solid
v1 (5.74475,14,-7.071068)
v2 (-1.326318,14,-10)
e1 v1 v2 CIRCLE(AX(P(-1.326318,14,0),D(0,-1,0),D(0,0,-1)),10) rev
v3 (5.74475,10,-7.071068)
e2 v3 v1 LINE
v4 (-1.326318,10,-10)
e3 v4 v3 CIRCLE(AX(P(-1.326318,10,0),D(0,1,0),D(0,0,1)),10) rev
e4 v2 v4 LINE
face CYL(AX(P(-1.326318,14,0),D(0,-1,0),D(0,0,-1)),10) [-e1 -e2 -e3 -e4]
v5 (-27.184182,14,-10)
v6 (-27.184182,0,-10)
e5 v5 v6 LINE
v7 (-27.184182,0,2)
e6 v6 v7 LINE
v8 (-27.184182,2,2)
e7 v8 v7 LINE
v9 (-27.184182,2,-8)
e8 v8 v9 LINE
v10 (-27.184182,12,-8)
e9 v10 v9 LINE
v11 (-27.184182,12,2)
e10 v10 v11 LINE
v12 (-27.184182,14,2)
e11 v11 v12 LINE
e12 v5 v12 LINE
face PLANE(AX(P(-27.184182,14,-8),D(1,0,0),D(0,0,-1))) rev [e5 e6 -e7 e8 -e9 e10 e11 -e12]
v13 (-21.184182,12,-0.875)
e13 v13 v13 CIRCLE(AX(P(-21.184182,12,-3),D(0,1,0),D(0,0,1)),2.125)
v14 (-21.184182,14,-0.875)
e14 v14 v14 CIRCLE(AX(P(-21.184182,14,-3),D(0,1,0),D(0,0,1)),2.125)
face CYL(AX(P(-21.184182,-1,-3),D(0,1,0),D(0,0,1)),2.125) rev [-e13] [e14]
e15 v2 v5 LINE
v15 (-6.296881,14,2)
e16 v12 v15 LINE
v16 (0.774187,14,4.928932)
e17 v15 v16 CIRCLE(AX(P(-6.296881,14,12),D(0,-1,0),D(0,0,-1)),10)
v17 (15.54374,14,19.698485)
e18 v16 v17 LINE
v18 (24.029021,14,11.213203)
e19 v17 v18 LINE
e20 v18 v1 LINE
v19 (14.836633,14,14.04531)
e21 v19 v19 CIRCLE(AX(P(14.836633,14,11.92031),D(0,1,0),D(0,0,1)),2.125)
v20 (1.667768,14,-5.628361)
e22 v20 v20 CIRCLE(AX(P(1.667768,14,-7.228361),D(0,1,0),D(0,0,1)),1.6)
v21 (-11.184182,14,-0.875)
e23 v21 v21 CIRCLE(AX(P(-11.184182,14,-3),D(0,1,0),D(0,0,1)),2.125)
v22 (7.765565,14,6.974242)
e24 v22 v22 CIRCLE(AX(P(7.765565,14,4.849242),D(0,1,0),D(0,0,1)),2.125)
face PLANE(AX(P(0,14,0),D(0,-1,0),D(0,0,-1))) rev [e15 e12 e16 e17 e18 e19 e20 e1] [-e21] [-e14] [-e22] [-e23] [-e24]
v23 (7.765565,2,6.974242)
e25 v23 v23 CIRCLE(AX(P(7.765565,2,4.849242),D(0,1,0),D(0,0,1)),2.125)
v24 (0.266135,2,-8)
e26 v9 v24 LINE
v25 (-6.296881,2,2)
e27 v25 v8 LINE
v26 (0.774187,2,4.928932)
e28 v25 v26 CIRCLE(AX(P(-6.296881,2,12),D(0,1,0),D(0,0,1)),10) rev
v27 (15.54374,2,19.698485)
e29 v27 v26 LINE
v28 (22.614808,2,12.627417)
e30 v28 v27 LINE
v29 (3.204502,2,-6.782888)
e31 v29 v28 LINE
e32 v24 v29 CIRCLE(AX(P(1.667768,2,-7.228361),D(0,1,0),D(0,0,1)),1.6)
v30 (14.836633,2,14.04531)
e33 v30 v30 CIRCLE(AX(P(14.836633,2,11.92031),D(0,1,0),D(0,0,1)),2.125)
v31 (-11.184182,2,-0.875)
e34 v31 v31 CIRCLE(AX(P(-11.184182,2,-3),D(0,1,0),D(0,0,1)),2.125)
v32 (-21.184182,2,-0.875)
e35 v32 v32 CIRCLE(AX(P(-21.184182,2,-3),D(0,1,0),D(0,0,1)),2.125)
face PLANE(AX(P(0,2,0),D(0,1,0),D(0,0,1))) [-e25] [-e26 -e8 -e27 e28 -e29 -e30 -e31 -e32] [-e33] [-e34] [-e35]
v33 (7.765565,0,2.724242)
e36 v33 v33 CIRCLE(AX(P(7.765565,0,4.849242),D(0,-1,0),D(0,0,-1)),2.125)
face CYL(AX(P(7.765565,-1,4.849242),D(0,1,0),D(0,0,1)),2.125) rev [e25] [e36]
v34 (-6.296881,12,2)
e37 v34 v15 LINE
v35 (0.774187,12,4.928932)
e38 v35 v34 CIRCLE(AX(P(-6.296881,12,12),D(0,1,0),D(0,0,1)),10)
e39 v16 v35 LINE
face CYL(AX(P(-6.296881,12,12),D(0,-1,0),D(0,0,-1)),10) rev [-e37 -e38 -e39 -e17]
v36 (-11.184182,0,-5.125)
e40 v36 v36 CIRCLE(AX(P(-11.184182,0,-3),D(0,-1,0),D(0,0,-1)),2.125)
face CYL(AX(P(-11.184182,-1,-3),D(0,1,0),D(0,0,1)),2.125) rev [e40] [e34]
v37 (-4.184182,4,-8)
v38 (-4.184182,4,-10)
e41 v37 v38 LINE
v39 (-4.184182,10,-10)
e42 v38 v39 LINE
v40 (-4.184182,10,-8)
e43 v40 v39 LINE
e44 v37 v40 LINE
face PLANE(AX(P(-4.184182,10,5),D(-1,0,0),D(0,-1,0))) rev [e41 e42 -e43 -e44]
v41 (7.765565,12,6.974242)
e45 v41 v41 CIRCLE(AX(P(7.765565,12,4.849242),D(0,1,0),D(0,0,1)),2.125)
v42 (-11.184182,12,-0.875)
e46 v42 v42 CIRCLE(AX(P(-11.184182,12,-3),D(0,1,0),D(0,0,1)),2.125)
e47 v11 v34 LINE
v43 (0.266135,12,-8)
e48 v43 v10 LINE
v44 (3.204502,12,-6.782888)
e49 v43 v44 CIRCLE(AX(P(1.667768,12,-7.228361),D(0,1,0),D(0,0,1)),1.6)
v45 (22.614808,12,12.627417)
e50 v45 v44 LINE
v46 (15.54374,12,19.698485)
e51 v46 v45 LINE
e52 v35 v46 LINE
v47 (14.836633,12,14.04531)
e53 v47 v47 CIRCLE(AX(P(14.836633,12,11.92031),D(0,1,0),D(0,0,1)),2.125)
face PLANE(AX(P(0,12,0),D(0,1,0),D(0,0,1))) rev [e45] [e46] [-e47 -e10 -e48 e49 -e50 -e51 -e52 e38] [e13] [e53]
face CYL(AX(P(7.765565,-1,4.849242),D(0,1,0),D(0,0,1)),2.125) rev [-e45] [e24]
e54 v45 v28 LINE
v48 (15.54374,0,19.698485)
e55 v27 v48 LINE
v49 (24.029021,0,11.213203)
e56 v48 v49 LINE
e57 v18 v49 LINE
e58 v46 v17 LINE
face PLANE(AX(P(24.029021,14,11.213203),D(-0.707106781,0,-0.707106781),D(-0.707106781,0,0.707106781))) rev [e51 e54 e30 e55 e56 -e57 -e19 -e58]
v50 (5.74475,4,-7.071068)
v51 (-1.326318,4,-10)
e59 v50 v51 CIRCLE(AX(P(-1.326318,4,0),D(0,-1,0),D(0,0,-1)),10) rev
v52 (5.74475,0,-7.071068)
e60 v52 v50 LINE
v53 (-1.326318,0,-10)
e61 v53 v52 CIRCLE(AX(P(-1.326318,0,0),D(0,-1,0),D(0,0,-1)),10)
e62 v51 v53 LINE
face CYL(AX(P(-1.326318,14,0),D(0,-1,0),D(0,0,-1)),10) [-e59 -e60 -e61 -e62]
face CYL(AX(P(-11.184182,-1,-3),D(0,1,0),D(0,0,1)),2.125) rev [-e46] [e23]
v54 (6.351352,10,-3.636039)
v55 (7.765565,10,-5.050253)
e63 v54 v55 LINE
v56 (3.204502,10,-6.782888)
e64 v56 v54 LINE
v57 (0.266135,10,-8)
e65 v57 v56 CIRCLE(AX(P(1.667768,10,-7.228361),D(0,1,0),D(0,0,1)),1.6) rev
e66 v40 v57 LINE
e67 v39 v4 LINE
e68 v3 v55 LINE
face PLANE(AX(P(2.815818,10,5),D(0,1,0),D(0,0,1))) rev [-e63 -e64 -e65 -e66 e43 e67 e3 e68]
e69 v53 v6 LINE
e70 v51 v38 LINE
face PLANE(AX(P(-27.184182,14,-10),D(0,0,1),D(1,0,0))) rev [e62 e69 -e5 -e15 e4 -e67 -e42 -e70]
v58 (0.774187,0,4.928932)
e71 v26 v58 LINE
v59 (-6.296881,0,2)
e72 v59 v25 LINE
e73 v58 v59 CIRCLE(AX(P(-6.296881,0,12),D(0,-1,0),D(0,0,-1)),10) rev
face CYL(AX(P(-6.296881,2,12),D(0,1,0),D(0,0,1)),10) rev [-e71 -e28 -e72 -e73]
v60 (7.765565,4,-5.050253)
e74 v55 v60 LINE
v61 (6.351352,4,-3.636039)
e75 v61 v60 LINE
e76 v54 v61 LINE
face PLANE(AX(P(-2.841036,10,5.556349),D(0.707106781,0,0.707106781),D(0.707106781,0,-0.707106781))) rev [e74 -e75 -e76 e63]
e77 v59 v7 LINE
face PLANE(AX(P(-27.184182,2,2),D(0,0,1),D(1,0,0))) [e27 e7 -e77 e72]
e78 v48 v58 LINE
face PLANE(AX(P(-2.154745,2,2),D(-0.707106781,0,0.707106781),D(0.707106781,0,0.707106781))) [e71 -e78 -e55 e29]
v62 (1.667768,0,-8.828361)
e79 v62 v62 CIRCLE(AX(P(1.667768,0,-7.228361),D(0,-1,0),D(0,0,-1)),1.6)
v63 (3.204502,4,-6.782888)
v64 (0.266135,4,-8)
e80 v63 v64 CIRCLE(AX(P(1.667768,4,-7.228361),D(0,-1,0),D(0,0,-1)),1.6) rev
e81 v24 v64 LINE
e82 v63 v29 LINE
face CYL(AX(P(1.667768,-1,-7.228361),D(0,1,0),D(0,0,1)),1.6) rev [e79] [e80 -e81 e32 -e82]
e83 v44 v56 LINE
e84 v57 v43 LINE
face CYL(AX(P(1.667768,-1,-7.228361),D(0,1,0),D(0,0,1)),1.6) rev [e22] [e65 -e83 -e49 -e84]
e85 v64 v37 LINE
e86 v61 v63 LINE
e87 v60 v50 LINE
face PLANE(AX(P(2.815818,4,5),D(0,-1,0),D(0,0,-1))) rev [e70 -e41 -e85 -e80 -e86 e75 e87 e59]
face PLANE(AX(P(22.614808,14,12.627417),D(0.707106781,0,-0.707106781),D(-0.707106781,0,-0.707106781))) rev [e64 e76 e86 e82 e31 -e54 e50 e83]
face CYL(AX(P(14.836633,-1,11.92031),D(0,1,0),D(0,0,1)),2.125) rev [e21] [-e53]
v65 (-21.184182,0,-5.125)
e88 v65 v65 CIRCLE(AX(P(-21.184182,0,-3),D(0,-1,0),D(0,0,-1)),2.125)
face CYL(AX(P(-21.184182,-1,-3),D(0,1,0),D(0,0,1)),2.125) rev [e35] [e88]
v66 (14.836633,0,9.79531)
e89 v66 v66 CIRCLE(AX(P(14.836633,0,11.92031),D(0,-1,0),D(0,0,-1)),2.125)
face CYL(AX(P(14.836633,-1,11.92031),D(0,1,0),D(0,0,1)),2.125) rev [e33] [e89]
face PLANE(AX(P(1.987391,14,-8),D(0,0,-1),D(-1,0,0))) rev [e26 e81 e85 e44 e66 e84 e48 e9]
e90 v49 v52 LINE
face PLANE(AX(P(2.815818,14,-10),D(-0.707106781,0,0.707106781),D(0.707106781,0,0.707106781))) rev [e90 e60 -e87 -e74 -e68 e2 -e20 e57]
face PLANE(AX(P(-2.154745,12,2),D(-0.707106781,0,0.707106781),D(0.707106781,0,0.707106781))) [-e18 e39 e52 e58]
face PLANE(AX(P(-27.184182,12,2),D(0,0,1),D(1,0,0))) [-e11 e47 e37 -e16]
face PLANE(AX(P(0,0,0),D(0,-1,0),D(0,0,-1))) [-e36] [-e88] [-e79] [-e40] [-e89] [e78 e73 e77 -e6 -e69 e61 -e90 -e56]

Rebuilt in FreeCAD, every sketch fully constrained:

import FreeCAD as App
import Part
import Sketcher
Q = App.Units.Quantity


def edges_at(feature, points):
    """Names of the edges that pass closest to the given points."""
    edges = feature.Shape.Edges
    near = lambda p: min(range(len(edges)), key=lambda i: edges[i].distToShape(Part.Vertex(*p))[0])
    return sorted({f"Edge{near(p) + 1}" for p in points})


def add_polygon(sketch, points):
    """Adds a closed chain of lines whose ends are joined by coincident constraints."""
    first, n = sketch.GeometryCount, len(points)
    for a, b in zip(points, points[1:] + points[:1]):
        sketch.addGeometry(Part.LineSegment(App.Vector(*a, 0), App.Vector(*b, 0)), False)
    for i in range(n):
        sketch.addConstraint(Sketcher.Constraint("Coincident", first + i, 2, first + (i + 1) % n, 1))

doc = App.newDocument("Part")
body = doc.addObject("PartDesign::Body", "Body")

sketch1 = body.newObject("Sketcher::SketchObject", "Sketch")
sketch1.AttachmentSupport = (doc.getObject("XZ_Plane"), [""])
sketch1.MapMode = "FlatFace"
add_polygon(sketch1, [(2.8, -10), (-27.2, -10), (-27.2, -8), (2, -8), (22.6, 12.6), (24, 11.2)])
sketch1.addConstraint([
    Sketcher.Constraint("Horizontal", 0),
    Sketcher.Constraint("Vertical", 1),
    Sketcher.Constraint("Horizontal", 2),
    Sketcher.Constraint("Perpendicular", 3, 4),
    Sketcher.Constraint("Perpendicular", 4, 5),
    Sketcher.Constraint("DistanceX", 0, 2, 0, 1, 30.0),
    Sketcher.Constraint("DistanceY", 1, 1, 1, 2, 2.0),
    Sketcher.Constraint("Angle", 3, Q("45 deg")),
    Sketcher.Constraint("Distance", 4, 2.0),
    Sketcher.Constraint("Distance", 5, 30.0),
    Sketcher.Constraint("DistanceY", 0, 2, -1, 1, 10.0),
    Sketcher.Constraint("DistanceX", -1, 1, 2, 2, 1.987391),
])
pad1 = body.newObject("PartDesign::Pad", "Pad")
pad1.Profile = sketch1
pad1.Length = 14
pad1.Reversed = True

sketch2 = body.newObject("Sketcher::SketchObject", "Sketch001")
sketch2.AttachmentSupport = (doc.getObject("XZ_Plane"), [""])
sketch2.MapMode = "FlatFace"
sketch2.AttachmentOffset = App.Placement(App.Vector(0, 0, -14), App.Rotation())
add_polygon(sketch2, [(-27, -8), (-27, 2), (-2, 2), (16, 20), (23, 13), (2, -8)])
sketch2.addConstraint([
    Sketcher.Constraint("Vertical", 0),
    Sketcher.Constraint("Horizontal", 1),
    Sketcher.Constraint("Horizontal", 5),
    Sketcher.Constraint("Perpendicular", 2, 3),
    Sketcher.Constraint("Perpendicular", 3, 4),
    Sketcher.Constraint("DistanceY", 0, 1, 0, 2, 10.0),
    Sketcher.Constraint("Angle", 2, Q("45 deg")),
    Sketcher.Constraint("Distance", 3, 10.0),
    Sketcher.Constraint("DistanceY", -1, 1, 0, 2, 2.0),
    Sketcher.Constraint("DistanceX", 1, 1, 1, 2, 25.029437),
    Sketcher.Constraint("DistanceX", -1, 1, 2, 2, 15.54374),
    Sketcher.Constraint("DistanceX", -1, 1, 4, 2, 1.987391),
])
pad2 = body.newObject("PartDesign::Pad", "Pad001")
pad2.Profile = sketch2
pad2.Length = 2

sketch3 = body.newObject("Sketcher::SketchObject", "Sketch002")
sketch3.AttachmentSupport = (doc.getObject("XZ_Plane"), [""])
sketch3.MapMode = "FlatFace"
add_polygon(sketch3, [(-27, 2), (-27, -8), (2, -8), (23, 13), (16, 20), (-2, 2)])
sketch3.addConstraint([
    Sketcher.Constraint("Vertical", 0),
    Sketcher.Constraint("Horizontal", 1),
    Sketcher.Constraint("Horizontal", 5),
    Sketcher.Constraint("Perpendicular", 2, 3),
    Sketcher.Constraint("Perpendicular", 3, 4),
    Sketcher.Constraint("DistanceY", 0, 2, 0, 1, 10.0),
    Sketcher.Constraint("Angle", 2, Q("45 deg")),
    Sketcher.Constraint("Distance", 3, 10.0),
    Sketcher.Constraint("DistanceY", 0, 2, -1, 1, 8.0),
    Sketcher.Constraint("DistanceX", 1, 1, 1, 2, 29.171573),
    Sketcher.Constraint("DistanceX", -1, 1, 1, 2, 1.987391),
    Sketcher.Constraint("DistanceX", -1, 1, 3, 2, 15.54374),
])
pad3 = body.newObject("PartDesign::Pad", "Pad002")
pad3.Profile = sketch3
pad3.Length = 2
pad3.Reversed = True

sketch4 = body.newObject("Sketcher::SketchObject", "Sketch003")
sketch4.AttachmentSupport = (doc.getObject("XZ_Plane"), [""])
sketch4.MapMode = "FlatFace"
sketch4.AttachmentOffset = App.Placement(App.Vector(0, 0, -14), App.Rotation())
sketch4.addGeometry([
    Part.Circle(App.Vector(-21.2, -3, 0), App.Vector(0, 0, 1), 2.1),
    Part.Circle(App.Vector(-11.2, -3, 0), App.Vector(0, 0, 1), 2.1),
    Part.Circle(App.Vector(7.8, 4.8, 0), App.Vector(0, 0, 1), 2.1),
    Part.Circle(App.Vector(14.8, 11.9, 0), App.Vector(0, 0, 1), 2.1),
], False)
sketch4.addConstraint([
    Sketcher.Constraint("Equal", 0, 1),
    Sketcher.Constraint("Equal", 1, 2),
    Sketcher.Constraint("Equal", 2, 3),
    Sketcher.Constraint("Horizontal", 0, 3, 1, 3),
    Sketcher.Constraint("Diameter", 0, 4.25),
    Sketcher.Constraint("DistanceY", 0, 3, -1, 1, 3.0),
    Sketcher.Constraint("DistanceX", 0, 3, 1, 3, 10.0),
    Sketcher.Constraint("DistanceY", -1, 1, 3, 3, 11.92031),
    Sketcher.Constraint("DistanceX", 0, 3, -1, 1, 21.184182),
    Sketcher.Constraint("DistanceX", -1, 1, 2, 3, 7.765565),
    Sketcher.Constraint("DistanceY", -1, 1, 2, 3, 4.849242),
    Sketcher.Constraint("DistanceX", -1, 1, 3, 3, 14.836633),
])
pocket1 = body.newObject("PartDesign::Pocket", "Pocket")
pocket1.Profile = sketch4
pocket1.Length = 15
pocket1.Reversed = True

sketch5 = body.newObject("Sketcher::SketchObject", "Sketch004")
sketch5.AttachmentSupport = (doc.getObject("XZ_Plane"), [""])
sketch5.MapMode = "FlatFace"
sketch5.AttachmentOffset = App.Placement(App.Vector(0, 0, -14), App.Rotation())
sketch5.addGeometry(Part.Circle(App.Vector(1.7, -7.2, 0), App.Vector(0, 0, 1), 1.6), False)
sketch5.addConstraint([
    Sketcher.Constraint("Diameter", 0, 3.2),
    Sketcher.Constraint("DistanceY", 0, 3, -1, 1, 7.228361),
    Sketcher.Constraint("DistanceX", -1, 1, 0, 3, 1.667768),
])
pocket2 = body.newObject("PartDesign::Pocket", "Pocket001")
pocket2.Profile = sketch5
pocket2.Length = 15
pocket2.Reversed = True

sketch6 = body.newObject("Sketcher::SketchObject", "Sketch005")
sketch6.AttachmentSupport = (doc.getObject("XY_Plane"), [""])
sketch6.MapMode = "FlatFace"
sketch6.AttachmentOffset = App.Placement(App.Vector(0, 0, -10), App.Rotation())
add_polygon(sketch6, [(3, 10), (3, 4), (-4, 4), (-4, 10)])
sketch6.addConstraint([
    Sketcher.Constraint("Vertical", 0),
    Sketcher.Constraint("Horizontal", 1),
    Sketcher.Constraint("Vertical", 2),
    Sketcher.Constraint("Horizontal", 3),
    Sketcher.Constraint("DistanceX", 1, 2, 1, 1, 7.0),
    Sketcher.Constraint("DistanceY", 0, 2, 0, 1, 6.0),
    Sketcher.Constraint("DistanceY", -1, 1, 0, 2, 4.0),
    Sketcher.Constraint("DistanceX", -1, 1, 0, 2, 2.815818),
])
pocket3 = body.newObject("PartDesign::Pocket", "Pocket002")
pocket3.Profile = sketch6
pocket3.Length = 15
pocket3.Reversed = True

sketch7 = body.newObject("Sketcher::SketchObject", "Sketch006")
sketch7.Placement = App.Placement(App.Vector(6.407909, 0, -6.407909), App.Rotation(App.Vector(-0.707106781, 0, -0.707106781), App.Vector(0, 0.999999999, 0), App.Vector(0.707106781, 0, -0.707106781), "ZXY"))
add_polygon(sketch7, [(-2, 10), (-2, 4), (5, 4), (5, 10)])
sketch7.addConstraint([
    Sketcher.Constraint("Vertical", 0),
    Sketcher.Constraint("Horizontal", 1),
    Sketcher.Constraint("Vertical", 2),
    Sketcher.Constraint("Horizontal", 3),
    Sketcher.Constraint("DistanceX", 1, 1, 1, 2, 7.0),
    Sketcher.Constraint("DistanceY", 0, 2, 0, 1, 6.0),
    Sketcher.Constraint("DistanceY", -1, 1, 0, 2, 4.0),
    Sketcher.Constraint("DistanceX", 0, 2, -1, 1, 1.920016),
])
pocket4 = body.newObject("PartDesign::Pocket", "Pocket003")
pocket4.Profile = sketch7
pocket4.Length = 15
doc.recompute()

fillet = body.newObject("PartDesign::Fillet", "Fillet")
fillet.Base = (pocket4, edges_at(pocket4, [(2.816, 2, -10), (2.816, 12, -10)]))
fillet.Radius = 10
doc.recompute()

fillet2 = body.newObject("PartDesign::Fillet", "Fillet001")
fillet2.Base = (fillet, edges_at(fillet, [(-2.155, 13, 2), (-2.155, 1, 2)]))
fillet2.Radius = 10

doc.recompute()
